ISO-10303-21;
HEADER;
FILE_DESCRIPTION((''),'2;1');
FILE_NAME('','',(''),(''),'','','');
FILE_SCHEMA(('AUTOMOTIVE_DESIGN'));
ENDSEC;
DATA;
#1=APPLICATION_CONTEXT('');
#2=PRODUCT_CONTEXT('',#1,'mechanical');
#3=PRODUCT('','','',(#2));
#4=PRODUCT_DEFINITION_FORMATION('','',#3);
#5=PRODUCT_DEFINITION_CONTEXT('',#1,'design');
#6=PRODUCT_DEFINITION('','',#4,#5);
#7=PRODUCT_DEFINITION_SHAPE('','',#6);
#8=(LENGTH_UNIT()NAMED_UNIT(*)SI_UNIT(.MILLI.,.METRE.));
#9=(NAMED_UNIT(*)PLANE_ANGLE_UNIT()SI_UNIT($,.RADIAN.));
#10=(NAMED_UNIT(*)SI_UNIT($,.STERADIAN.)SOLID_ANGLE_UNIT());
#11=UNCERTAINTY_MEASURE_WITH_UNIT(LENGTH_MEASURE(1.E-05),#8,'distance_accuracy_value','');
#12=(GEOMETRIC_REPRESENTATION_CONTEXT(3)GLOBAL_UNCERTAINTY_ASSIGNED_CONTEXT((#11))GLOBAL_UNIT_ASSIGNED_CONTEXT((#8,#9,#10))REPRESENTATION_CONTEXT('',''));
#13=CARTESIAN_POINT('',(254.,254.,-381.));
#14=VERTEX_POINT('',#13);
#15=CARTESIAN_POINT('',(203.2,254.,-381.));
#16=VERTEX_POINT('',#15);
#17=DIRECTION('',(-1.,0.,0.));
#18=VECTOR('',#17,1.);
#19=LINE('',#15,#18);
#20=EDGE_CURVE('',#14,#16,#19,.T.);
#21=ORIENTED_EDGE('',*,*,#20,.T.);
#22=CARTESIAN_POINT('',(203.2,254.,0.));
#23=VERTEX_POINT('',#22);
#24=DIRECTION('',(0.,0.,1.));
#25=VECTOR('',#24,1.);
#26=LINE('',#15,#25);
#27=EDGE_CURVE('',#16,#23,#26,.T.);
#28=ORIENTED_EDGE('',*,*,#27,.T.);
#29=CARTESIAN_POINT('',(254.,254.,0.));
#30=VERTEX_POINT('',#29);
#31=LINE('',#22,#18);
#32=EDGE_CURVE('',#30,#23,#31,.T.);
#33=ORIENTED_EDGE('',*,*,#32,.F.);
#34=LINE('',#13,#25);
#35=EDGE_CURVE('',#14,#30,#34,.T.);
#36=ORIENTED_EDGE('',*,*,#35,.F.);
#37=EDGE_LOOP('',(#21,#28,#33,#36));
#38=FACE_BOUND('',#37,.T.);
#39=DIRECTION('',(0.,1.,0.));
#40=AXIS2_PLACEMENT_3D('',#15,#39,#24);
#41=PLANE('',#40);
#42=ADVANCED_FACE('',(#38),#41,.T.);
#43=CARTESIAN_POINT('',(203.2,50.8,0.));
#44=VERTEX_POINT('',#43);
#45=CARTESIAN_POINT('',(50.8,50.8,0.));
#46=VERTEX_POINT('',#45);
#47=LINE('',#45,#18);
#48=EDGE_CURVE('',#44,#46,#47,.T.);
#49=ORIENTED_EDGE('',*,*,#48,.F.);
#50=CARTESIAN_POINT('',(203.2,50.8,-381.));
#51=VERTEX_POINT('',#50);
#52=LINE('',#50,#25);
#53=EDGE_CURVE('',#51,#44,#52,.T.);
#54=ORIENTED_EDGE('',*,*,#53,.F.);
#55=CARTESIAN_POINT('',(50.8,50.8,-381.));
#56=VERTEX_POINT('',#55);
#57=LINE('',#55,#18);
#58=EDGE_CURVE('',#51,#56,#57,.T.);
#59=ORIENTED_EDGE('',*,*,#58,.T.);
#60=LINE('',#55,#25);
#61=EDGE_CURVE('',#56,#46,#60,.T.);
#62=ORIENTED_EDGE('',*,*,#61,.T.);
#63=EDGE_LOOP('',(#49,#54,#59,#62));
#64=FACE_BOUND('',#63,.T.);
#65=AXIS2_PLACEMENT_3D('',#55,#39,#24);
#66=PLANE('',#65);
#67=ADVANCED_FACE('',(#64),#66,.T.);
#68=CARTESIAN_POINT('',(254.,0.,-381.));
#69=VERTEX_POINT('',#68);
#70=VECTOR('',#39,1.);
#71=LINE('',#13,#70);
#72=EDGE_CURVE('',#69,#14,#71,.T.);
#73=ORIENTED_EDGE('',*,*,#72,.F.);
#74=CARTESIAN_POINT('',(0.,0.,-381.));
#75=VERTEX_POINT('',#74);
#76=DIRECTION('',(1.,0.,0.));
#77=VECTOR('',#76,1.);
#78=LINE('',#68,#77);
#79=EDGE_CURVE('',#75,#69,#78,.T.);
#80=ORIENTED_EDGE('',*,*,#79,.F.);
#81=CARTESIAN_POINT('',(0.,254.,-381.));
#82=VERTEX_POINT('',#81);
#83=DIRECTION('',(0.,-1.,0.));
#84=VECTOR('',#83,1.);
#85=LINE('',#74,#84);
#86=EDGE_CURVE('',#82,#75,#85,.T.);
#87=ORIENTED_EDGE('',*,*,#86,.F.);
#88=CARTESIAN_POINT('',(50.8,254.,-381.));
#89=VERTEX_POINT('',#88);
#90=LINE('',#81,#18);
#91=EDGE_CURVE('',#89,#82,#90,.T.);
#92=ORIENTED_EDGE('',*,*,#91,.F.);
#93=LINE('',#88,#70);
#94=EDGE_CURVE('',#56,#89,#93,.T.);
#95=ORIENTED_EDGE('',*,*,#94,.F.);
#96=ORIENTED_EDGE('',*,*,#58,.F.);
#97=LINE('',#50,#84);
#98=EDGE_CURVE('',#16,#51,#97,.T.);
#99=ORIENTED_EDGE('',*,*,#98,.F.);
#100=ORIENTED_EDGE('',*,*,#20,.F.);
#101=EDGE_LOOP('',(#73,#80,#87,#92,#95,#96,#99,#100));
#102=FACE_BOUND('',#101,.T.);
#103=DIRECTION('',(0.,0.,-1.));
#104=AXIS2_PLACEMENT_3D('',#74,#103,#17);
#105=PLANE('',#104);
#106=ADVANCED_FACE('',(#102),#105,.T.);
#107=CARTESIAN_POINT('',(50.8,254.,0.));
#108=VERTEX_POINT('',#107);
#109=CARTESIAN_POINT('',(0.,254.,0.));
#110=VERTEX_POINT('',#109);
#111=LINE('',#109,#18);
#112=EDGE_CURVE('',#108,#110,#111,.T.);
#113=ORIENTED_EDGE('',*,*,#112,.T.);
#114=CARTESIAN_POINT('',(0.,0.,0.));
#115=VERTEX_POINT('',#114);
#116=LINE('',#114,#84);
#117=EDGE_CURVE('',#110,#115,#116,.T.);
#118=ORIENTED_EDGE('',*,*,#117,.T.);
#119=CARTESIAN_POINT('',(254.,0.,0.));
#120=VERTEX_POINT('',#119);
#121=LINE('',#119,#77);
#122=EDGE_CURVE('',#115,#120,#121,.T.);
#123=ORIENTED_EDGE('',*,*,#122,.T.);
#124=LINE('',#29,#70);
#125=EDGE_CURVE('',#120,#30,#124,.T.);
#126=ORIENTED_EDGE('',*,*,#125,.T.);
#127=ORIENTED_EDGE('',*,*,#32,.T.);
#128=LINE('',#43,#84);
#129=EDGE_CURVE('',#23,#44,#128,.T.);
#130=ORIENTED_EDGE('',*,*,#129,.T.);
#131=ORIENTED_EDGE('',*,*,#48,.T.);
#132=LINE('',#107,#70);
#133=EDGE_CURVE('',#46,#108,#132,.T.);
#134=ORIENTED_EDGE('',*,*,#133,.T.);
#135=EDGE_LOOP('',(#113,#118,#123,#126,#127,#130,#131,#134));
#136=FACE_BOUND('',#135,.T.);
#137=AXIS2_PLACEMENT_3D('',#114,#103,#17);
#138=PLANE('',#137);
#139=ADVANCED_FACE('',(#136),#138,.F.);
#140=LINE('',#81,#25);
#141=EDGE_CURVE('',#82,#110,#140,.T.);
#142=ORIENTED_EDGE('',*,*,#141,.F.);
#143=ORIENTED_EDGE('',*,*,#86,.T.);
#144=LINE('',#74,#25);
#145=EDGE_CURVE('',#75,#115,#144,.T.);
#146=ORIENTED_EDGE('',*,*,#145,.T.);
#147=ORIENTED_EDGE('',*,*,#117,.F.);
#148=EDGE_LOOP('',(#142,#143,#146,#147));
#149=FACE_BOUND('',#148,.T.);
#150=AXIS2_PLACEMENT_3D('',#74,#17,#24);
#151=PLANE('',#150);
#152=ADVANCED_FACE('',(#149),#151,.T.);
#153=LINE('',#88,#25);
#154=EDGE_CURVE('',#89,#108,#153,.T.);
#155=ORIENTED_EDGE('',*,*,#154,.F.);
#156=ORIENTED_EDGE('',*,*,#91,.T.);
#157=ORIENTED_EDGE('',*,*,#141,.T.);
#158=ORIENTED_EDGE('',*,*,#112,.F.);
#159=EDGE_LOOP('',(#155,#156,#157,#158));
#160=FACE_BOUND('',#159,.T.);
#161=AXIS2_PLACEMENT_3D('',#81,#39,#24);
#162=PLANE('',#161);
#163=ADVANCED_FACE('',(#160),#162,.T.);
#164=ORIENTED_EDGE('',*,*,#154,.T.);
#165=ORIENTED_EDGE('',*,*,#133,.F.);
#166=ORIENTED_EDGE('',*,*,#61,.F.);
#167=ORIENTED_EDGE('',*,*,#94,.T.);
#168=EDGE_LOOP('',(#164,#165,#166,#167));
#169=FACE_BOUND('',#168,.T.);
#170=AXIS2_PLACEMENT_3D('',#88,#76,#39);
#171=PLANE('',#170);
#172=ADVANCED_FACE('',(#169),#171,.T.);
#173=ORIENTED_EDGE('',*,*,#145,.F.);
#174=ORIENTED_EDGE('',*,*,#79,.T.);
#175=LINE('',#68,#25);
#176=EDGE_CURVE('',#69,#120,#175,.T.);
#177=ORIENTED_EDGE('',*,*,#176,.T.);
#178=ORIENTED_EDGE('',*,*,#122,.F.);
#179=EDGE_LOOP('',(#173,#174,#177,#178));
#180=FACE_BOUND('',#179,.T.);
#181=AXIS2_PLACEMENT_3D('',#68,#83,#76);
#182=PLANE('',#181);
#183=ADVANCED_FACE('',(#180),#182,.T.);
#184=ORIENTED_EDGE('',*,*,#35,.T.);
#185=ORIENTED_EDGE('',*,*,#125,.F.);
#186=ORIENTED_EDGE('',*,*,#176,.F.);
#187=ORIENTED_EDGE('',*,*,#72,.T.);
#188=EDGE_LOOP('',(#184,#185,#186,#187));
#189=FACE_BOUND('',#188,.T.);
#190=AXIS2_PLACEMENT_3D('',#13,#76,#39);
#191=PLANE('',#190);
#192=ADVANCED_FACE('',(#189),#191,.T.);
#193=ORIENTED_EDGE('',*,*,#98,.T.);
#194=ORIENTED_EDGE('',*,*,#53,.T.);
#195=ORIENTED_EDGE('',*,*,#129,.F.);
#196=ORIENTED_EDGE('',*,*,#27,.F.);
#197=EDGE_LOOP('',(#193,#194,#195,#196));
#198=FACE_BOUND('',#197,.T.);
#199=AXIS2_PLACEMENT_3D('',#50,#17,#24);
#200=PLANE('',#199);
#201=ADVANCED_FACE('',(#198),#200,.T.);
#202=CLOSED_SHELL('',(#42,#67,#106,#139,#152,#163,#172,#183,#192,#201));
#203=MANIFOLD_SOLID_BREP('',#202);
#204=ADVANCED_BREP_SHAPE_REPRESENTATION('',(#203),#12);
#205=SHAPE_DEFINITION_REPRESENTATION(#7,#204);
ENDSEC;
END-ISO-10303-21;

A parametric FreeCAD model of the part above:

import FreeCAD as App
import Part
import Sketcher
Q = App.Units.Quantity


def add_polygon(sketch, points):
    """Adds a closed chain of lines whose ends are joined by coincident constraints."""
    first, n = sketch.GeometryCount, len(points)
    for a, b in zip(points, points[1:] + points[:1]):
        sketch.addGeometry(Part.LineSegment(App.Vector(*a, 0), App.Vector(*b, 0)), False)
    for i in range(n):
        sketch.addConstraint(Sketcher.Constraint("Coincident", first + i, 2, first + (i + 1) % n, 1))

doc = App.newDocument("Part")
body = doc.addObject("PartDesign::Body", "Body")

# Sketch on XY plane
sketch1 = doc.addObject("Sketcher::SketchObject", "Sketch")
body.addObject(sketch1)
sketch1.AttachmentSupport = (doc.XY_Plane, [""])
sketch1.MapMode = "FlatFace"
add_polygon(sketch1, [(0, 254), (0, 0), (254, 0), (254, 254), (203, 254), (203, 51), (51, 51), (51, 254)])  # lines 0-7
sketch1.addConstraint(Sketcher.Constraint("Vertical", 0))
sketch1.addConstraint(Sketcher.Constraint("Horizontal", 1))
sketch1.addConstraint(Sketcher.Constraint("Vertical", 2))
sketch1.addConstraint(Sketcher.Constraint("Horizontal", 3))
sketch1.addConstraint(Sketcher.Constraint("Vertical", 4))
sketch1.addConstraint(Sketcher.Constraint("Horizontal", 5))
sketch1.addConstraint(Sketcher.Constraint("Vertical", 6))
sketch1.addConstraint(Sketcher.Constraint("Horizontal", 7))
sketch1.addConstraint(Sketcher.Constraint("Coincident", 0, 2, -1, 1))
sketch1.addConstraint(Sketcher.Constraint("Horizontal", 3, 2, 6, 2))
sketch1.addConstraint(Sketcher.Constraint("Equal", 3, 7))
sketch1.addConstraint(Sketcher.Constraint("Equal", 1, 0))
sketch1.addConstraint(Sketcher.Constraint("DistanceX", 1, 1, 1, 2, Q("10 in")))
sketch1.addConstraint(Sketcher.Constraint("DistanceX", 3, 2, 3, 1, Q("2 in")))
sketch1.addConstraint(Sketcher.Constraint("DistanceY", 4, 2, 4, 1, Q("8 in")))
pad1 = doc.addObject("PartDesign::Pad", "Pad")
body.addObject(pad1)
pad1.Profile = sketch1
pad1.Length = Q("15 in")
pad1.Reversed = True

doc.recompute()
